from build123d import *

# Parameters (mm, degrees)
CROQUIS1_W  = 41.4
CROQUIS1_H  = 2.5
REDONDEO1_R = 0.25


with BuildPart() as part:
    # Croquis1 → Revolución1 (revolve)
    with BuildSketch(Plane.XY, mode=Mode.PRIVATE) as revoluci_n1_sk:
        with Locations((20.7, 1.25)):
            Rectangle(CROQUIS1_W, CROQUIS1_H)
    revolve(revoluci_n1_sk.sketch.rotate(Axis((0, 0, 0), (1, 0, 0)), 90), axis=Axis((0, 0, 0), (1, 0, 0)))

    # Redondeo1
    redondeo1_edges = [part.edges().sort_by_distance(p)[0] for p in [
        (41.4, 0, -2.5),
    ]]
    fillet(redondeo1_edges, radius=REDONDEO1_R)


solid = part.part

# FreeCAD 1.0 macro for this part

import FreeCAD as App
import Part
import Sketcher
Q = App.Units.Quantity


def edges_at(feature, points):
    """Names of the edges that pass closest to the given points."""
    edges = feature.Shape.Edges
    near = lambda p: min(range(len(edges)), key=lambda i: edges[i].distToShape(Part.Vertex(*p))[0])
    return sorted({f"Edge{near(p) + 1}" for p in points})

doc = App.newDocument("Part")
params = doc.addObject("Spreadsheet::Sheet", "Params")
for row, (alias, value) in enumerate([
    ("sketch1_width", "41.4 mm"),
    ("sketch1_height", "2.5 mm"),
    ("revolution_angle", "360 deg"),
    ("fillet_radius", "0.25 mm"),
], start=1):
    params.set(f"A{row}", alias)
    params.set(f"B{row}", "=" + value)
    params.setAlias(f"B{row}", alias)

body = doc.addObject("PartDesign::Body", "Body")

sketch1 = doc.addObject("Sketcher::SketchObject", "Sketch")
body.addObject(sketch1)
sketch1.AttachmentSupport = (doc.XY_Plane, [""])
sketch1.MapMode = "FlatFace"
sketch1.addGeometry([
    Part.LineSegment(App.Vector(0, 2.5, 0), App.Vector(0, 0, 0)),
    Part.LineSegment(App.Vector(0, 0, 0), App.Vector(41.4, 0, 0)),
    Part.LineSegment(App.Vector(41.4, 0, 0), App.Vector(41.4, 2.5, 0)),
    Part.LineSegment(App.Vector(41.4, 2.5, 0), App.Vector(0, 2.5, 0)),
], False)
sketch1.addConstraint([
    Sketcher.Constraint("Coincident", 0, 2, 1, 1),
    Sketcher.Constraint("Coincident", 1, 2, 2, 1),
    Sketcher.Constraint("Coincident", 2, 2, 3, 1),
    Sketcher.Constraint("Coincident", 3, 2, 0, 1),
    Sketcher.Constraint("Vertical", 0),
    Sketcher.Constraint("Horizontal", 1),
    Sketcher.Constraint("Vertical", 2),
    Sketcher.Constraint("Horizontal", 3),
    Sketcher.Constraint("Coincident", 0, 2, -1, 1),
    Sketcher.Constraint("DistanceX", 1, 1, 1, 2, Q("41.4 mm")),
    Sketcher.Constraint("DistanceY", 0, 2, 0, 1, Q("2.5 mm")),
])
sketch1.setExpression("Constraints[9]", "Params.sketch1_width")
sketch1.setExpression("Constraints[10]", "Params.sketch1_height")
revolution = doc.addObject("PartDesign::Revolution", "Revolution")
body.addObject(revolution)
revolution.Profile = sketch1
revolution.ReferenceAxis = (sketch1, ["H_Axis"])
revolution.setExpression("Angle", "Params.revolution_angle")
doc.recompute()

fillet = doc.addObject("PartDesign::Fillet", "Fillet")
body.addObject(fillet)
fillet.Base = (revolution, edges_at(revolution, [(41.4, 0, -2.5)]))
fillet.setExpression("Radius", "Params.fillet_radius")

doc.recompute()
